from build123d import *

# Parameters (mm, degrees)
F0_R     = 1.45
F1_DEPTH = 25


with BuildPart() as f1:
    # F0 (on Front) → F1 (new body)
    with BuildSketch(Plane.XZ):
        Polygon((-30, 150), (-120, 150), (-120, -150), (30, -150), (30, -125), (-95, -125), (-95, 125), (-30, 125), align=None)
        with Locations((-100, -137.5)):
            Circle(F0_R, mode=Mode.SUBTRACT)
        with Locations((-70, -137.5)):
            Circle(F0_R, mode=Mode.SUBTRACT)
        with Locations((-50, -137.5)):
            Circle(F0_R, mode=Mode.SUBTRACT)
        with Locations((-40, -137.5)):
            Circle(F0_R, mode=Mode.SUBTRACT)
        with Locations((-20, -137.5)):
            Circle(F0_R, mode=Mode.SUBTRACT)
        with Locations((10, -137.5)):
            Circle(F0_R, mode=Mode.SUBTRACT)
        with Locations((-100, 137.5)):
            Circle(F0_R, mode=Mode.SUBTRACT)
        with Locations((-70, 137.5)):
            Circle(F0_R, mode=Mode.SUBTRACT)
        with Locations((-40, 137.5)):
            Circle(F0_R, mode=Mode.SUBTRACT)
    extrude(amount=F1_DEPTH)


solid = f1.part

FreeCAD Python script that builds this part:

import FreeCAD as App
import Part
import Sketcher
Q = App.Units.Quantity


def add_polygon(sketch, points):
    """Adds a closed chain of lines whose ends are joined by coincident constraints."""
    first, n = sketch.GeometryCount, len(points)
    for a, b in zip(points, points[1:] + points[:1]):
        sketch.addGeometry(Part.LineSegment(App.Vector(*a, 0), App.Vector(*b, 0)), False)
    for i in range(n):
        sketch.addConstraint(Sketcher.Constraint("Coincident", first + i, 2, first + (i + 1) % n, 1))

doc = App.newDocument("Part")
body = doc.addObject("PartDesign::Body", "Body")

# Sketch on XZ plane
sketch1 = doc.addObject("Sketcher::SketchObject", "Sketch")
body.addObject(sketch1)
sketch1.AttachmentSupport = (doc.XZ_Plane, [""])
sketch1.MapMode = "FlatFace"
add_polygon(sketch1, [(-30, 150), (-120, 150), (-120, -150), (30, -150), (30, -125), (-95, -125), (-95, 125), (-30, 125)])  # lines 0-7
sketch1.addGeometry(Part.Circle(App.Vector(-100, -137.5, 0), App.Vector(0, 0, 1), 1.4), False)  # 8
sketch1.addGeometry(Part.Circle(App.Vector(-70, -137.5, 0), App.Vector(0, 0, 1), 1.4), False)  # 9
sketch1.addGeometry(Part.Circle(App.Vector(-50, -137.5, 0), App.Vector(0, 0, 1), 1.4), False)  # 10
sketch1.addGeometry(Part.Circle(App.Vector(-40, -137.5, 0), App.Vector(0, 0, 1), 1.4), False)  # 11
sketch1.addGeometry(Part.Circle(App.Vector(-20, -137.5, 0), App.Vector(0, 0, 1), 1.4), False)  # 12
sketch1.addGeometry(Part.Circle(App.Vector(10, -137.5, 0), App.Vector(0, 0, 1), 1.4), False)  # 13
sketch1.addGeometry(Part.Circle(App.Vector(-100, 137.5, 0), App.Vector(0, 0, 1), 1.4), False)  # 14
sketch1.addGeometry(Part.Circle(App.Vector(-70, 137.5, 0), App.Vector(0, 0, 1), 1.4), False)  # 15
sketch1.addGeometry(Part.Circle(App.Vector(-40, 137.5, 0), App.Vector(0, 0, 1), 1.4), False)  # 16
sketch1.addConstraint([
    Sketcher.Constraint("Horizontal", 0),
    Sketcher.Constraint("Vertical", 1),
    Sketcher.Constraint("Horizontal", 2),
    Sketcher.Constraint("Vertical", 3),
    Sketcher.Constraint("Horizontal", 4),
    Sketcher.Constraint("Vertical", 5),
    Sketcher.Constraint("Horizontal", 6),
    Sketcher.Constraint("Vertical", 7),
    Sketcher.Constraint("Equal", 8, 9),
    Sketcher.Constraint("Equal", 9, 10),
    Sketcher.Constraint("Equal", 10, 11),
    Sketcher.Constraint("Equal", 11, 12),
    Sketcher.Constraint("Equal", 12, 13),
    Sketcher.Constraint("Equal", 13, 14),
    Sketcher.Constraint("Equal", 14, 15),
    Sketcher.Constraint("Equal", 15, 16),
    Sketcher.Constraint("Symmetric", 3, 2, 6, 2, -1, 1),
    Sketcher.Constraint("Symmetric", 8, 3, 14, 3, -1),
    Sketcher.Constraint("Symmetric", 9, 3, 15, 3, -1),
    Sketcher.Constraint("Symmetric", 11, 3, 16, 3, -1),
    Sketcher.Constraint("Horizontal", 8, 3, 9, 3),
    Sketcher.Constraint("Horizontal", 9, 3, 10, 3),
    Sketcher.Constraint("Horizontal", 10, 3, 11, 3),
    Sketcher.Constraint("Horizontal", 11, 3, 12, 3),
    Sketcher.Constraint("Horizontal", 12, 3, 13, 3),
    Sketcher.Constraint("Equal", 3, 7),
    Sketcher.Constraint("Diameter", 8, Q("2.9 mm")),
    Sketcher.Constraint("DistanceX", 0, 2, 0, 1, Q("90 mm")),
    Sketcher.Constraint("DistanceX", 2, 1, 2, 2, Q("150 mm")),
    Sketcher.Constraint("DistanceX", 4, 2, 4, 1, Q("125 mm")),
    Sketcher.Constraint("DistanceY", 1, 2, 1, 1, Q("300 mm")),
    Sketcher.Constraint("DistanceY", 3, 1, 3, 2, Q("25 mm")),
    Sketcher.Constraint("DistanceX", 8, 3, -1, 1, Q("100 mm")),
    Sketcher.Constraint("DistanceX", 9, 3, -1, 1, Q("70 mm")),
    Sketcher.Constraint("DistanceX", 10, 3, -1, 1, Q("50 mm")),
    Sketcher.Constraint("DistanceX", 11, 3, -1, 1, Q("40 mm")),
    Sketcher.Constraint("DistanceX", 12, 3, -1, 1, Q("20 mm")),
    Sketcher.Constraint("DistanceX", -1, 1, 13, 3, Q("10 mm")),
    Sketcher.Constraint("DistanceY", 8, 3, 14, 3, Q("275 mm")),
])
pad1 = doc.addObject("PartDesign::Pad", "Pad")
body.addObject(pad1)
pad1.Profile = sketch1
pad1.Length = 25

doc.recompute()
